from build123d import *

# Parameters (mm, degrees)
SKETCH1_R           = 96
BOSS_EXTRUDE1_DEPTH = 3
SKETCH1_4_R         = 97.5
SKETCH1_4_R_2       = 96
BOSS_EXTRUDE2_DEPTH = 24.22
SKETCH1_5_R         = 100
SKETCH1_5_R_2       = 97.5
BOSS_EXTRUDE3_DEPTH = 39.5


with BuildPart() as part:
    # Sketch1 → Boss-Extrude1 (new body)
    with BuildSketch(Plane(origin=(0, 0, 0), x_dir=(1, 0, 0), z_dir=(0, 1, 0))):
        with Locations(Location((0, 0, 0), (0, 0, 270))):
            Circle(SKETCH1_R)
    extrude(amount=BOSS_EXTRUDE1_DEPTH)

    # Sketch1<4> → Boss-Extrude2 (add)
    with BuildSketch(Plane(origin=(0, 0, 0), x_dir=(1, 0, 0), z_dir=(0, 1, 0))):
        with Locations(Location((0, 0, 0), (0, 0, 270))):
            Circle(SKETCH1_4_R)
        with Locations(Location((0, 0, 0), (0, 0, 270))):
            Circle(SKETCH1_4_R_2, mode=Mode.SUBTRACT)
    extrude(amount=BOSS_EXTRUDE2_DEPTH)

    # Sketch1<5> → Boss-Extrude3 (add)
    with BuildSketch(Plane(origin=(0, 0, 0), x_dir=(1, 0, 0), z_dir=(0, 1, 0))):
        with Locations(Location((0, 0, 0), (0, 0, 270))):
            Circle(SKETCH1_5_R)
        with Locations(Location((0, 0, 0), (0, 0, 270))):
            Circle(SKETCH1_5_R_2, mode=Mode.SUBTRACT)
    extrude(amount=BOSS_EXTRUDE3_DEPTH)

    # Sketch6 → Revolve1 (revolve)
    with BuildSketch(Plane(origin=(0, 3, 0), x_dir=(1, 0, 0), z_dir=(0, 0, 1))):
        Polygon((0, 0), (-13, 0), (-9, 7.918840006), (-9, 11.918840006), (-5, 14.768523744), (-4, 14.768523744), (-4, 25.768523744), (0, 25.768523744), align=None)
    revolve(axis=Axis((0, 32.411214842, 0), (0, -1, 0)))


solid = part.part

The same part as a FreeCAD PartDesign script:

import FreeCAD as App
import Part
import Sketcher
from FreeCAD import Vector


def add_polygon(sketch, points):
    """Adds a closed chain of lines whose ends are joined by coincident constraints."""
    first, n = sketch.GeometryCount, len(points)
    for a, b in zip(points, points[1:] + points[:1]):
        sketch.addGeometry(Part.LineSegment(App.Vector(*a, 0), App.Vector(*b, 0)), False)
    for i in range(n):
        sketch.addConstraint(Sketcher.Constraint("Coincident", first + i, 2, first + (i + 1) % n, 1))

doc = App.newDocument("Part")
body = doc.addObject("PartDesign::Body", "Body")

sketch1 = body.newObject("Sketcher::SketchObject", "Sketch")
sketch1.AttachmentSupport = (doc.getObject("XZ_Plane"), [""])
sketch1.MapMode = "FlatFace"
sketch1.addGeometry(Part.Circle(Vector(0, 0, 0), Vector(0, 0, 1), 96), False)
sketch1.addConstraint(Sketcher.Constraint("Coincident", 0, 3, -1, 1))
sketch1.addConstraint(Sketcher.Constraint("Diameter", 0, 192.0))
pad1 = body.newObject("PartDesign::Pad", "Pad")
pad1.Profile = sketch1
pad1.Length = 3
pad1.Reversed = True

sketch2 = body.newObject("Sketcher::SketchObject", "Sketch001")
sketch2.AttachmentSupport = (doc.getObject("XZ_Plane"), [""])
sketch2.MapMode = "FlatFace"
sketch2.addGeometry(Part.Circle(Vector(0, 0, 0), Vector(0, 0, 1), 98), False)
sketch2.addGeometry(Part.Circle(Vector(0, 0, 0), Vector(0, 0, 1), 96), False)
sketch2.addConstraint(Sketcher.Constraint("Coincident", 0, 3, -1, 1))
sketch2.addConstraint(Sketcher.Constraint("Coincident", 1, 3, -1, 1))
sketch2.addConstraint(Sketcher.Constraint("Diameter", 0, 195.0))
sketch2.addConstraint(Sketcher.Constraint("Diameter", 1, 192.0))
pad2 = body.newObject("PartDesign::Pad", "Pad001")
pad2.Profile = sketch2
pad2.Length = 24.22
pad2.Reversed = True

sketch3 = body.newObject("Sketcher::SketchObject", "Sketch002")
sketch3.AttachmentSupport = (doc.getObject("XZ_Plane"), [""])
sketch3.MapMode = "FlatFace"
sketch3.addGeometry(Part.Circle(Vector(0, 0, 0), Vector(0, 0, 1), 100), False)
sketch3.addGeometry(Part.Circle(Vector(0, 0, 0), Vector(0, 0, 1), 98), False)
sketch3.addConstraint(Sketcher.Constraint("Coincident", 0, 3, -1, 1))
sketch3.addConstraint(Sketcher.Constraint("Coincident", 1, 3, -1, 1))
sketch3.addConstraint(Sketcher.Constraint("Diameter", 0, 200.0))
sketch3.addConstraint(Sketcher.Constraint("Diameter", 1, 195.0))
pad3 = body.newObject("PartDesign::Pad", "Pad002")
pad3.Profile = sketch3
pad3.Length = 39.5
pad3.Reversed = True

sketch4 = body.newObject("Sketcher::SketchObject", "Sketch003")
sketch4.AttachmentSupport = (doc.getObject("XY_Plane"), [""])
sketch4.MapMode = "FlatFace"
add_polygon(sketch4, [(-13, 3), (0, 3), (0, 28.8), (-4, 28.8), (-4, 17.8), (-5, 17.8), (-9, 14.9), (-9, 10.9)])
sketch4.addConstraint(Sketcher.Constraint("Horizontal", 0))
sketch4.addConstraint(Sketcher.Constraint("Vertical", 1))
sketch4.addConstraint(Sketcher.Constraint("Horizontal", 2))
sketch4.addConstraint(Sketcher.Constraint("Vertical", 3))
sketch4.addConstraint(Sketcher.Constraint("Horizontal", 4))
sketch4.addConstraint(Sketcher.Constraint("Vertical", 6))
sketch4.addConstraint(Sketcher.Constraint("PointOnObject", 0, 2, -2))
sketch4.addConstraint(Sketcher.Constraint("Equal", 2, 6))
sketch4.addConstraint(Sketcher.Constraint("DistanceX", 0, 1, 0, 2, 13.0))
sketch4.addConstraint(Sketcher.Constraint("DistanceX", 2, 2, 2, 1, 4.0))
sketch4.addConstraint(Sketcher.Constraint("DistanceX", 4, 2, 4, 1, 1.0))
sketch4.addConstraint(Sketcher.Constraint("DistanceY", 3, 2, 3, 1, 11.0))
sketch4.addConstraint(Sketcher.Constraint("DistanceY", -1, 1, 0, 2, 3.0))
sketch4.addConstraint(Sketcher.Constraint("DistanceX", 5, 2, -1, 1, 9.0))
sketch4.addConstraint(Sketcher.Constraint("DistanceY", 1, 1, 1, 2, 25.768524))
sketch4.addConstraint(Sketcher.Constraint("DistanceY", -1, 1, 5, 2, 14.91884))
revolution = body.newObject("PartDesign::Revolution", "Revolution")
revolution.Profile = sketch4
revolution.ReferenceAxis = (sketch4, ["V_Axis"])
revolution.Angle = 360

doc.recompute()
